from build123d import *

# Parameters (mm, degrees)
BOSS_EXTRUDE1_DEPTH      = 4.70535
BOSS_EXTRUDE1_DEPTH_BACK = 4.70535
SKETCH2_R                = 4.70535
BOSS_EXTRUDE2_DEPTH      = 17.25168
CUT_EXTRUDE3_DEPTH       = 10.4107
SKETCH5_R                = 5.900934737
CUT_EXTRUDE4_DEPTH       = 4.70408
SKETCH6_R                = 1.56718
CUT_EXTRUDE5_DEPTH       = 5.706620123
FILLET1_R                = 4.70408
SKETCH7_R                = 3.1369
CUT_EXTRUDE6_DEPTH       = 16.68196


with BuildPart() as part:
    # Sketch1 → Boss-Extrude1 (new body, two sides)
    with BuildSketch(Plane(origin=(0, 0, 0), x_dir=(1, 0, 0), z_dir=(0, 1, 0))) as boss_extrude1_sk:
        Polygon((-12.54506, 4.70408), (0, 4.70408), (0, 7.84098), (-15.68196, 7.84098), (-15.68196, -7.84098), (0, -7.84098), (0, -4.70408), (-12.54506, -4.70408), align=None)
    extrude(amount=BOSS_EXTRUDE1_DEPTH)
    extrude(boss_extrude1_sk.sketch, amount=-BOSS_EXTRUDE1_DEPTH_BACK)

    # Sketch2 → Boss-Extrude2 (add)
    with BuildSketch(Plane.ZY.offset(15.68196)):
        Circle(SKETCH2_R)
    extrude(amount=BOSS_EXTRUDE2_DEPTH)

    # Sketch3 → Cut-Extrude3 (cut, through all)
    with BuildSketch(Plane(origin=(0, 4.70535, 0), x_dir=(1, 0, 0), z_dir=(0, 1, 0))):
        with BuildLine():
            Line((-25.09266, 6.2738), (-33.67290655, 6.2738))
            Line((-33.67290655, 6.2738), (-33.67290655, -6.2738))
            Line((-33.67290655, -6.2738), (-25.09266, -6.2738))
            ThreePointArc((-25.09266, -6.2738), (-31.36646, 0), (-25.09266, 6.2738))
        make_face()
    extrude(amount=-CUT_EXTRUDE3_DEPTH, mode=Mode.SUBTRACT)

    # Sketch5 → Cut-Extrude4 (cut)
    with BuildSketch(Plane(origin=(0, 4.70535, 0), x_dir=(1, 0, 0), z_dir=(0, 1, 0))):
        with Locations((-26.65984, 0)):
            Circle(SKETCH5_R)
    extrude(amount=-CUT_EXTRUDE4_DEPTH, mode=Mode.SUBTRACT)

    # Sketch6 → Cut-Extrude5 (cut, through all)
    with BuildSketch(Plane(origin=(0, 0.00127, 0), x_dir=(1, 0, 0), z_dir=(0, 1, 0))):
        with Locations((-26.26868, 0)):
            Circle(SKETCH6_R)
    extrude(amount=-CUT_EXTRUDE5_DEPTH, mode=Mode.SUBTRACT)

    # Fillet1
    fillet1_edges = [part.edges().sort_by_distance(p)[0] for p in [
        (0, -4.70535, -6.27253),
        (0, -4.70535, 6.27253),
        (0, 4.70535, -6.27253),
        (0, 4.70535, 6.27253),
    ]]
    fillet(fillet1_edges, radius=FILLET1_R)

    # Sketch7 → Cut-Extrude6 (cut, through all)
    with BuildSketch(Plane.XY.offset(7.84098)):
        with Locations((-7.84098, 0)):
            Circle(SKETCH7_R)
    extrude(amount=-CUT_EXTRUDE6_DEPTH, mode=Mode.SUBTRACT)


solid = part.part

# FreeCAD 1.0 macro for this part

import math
import FreeCAD as App
import Part
import Sketcher

V = App.Vector
Q = App.Units.Quantity


def edges_at(feature, points):
    """Names of the edges that pass closest to the given points."""
    edges = feature.Shape.Edges
    near = lambda p: min(range(len(edges)), key=lambda i: edges[i].distToShape(Part.Vertex(*p))[0])
    return sorted({f"Edge{near(p) + 1}" for p in points})


def add_polygon(sketch, points):
    """Adds a closed chain of lines whose ends are joined by coincident constraints."""
    first, n = sketch.GeometryCount, len(points)
    for a, b in zip(points, points[1:] + points[:1]):
        sketch.addGeometry(Part.LineSegment(App.Vector(*a, 0), App.Vector(*b, 0)), False)
    for i in range(n):
        sketch.addConstraint(Sketcher.Constraint("Coincident", first + i, 2, first + (i + 1) % n, 1))

doc = App.newDocument("Part")
params = doc.addObject("Spreadsheet::Sheet", "Params")
for row, (alias, value) in enumerate([
    ("pad1_length", "4.70535 mm"),
    ("pad1_length2", "4.70535 mm"),
    ("pad2_length", "0.6792 in"),
    ("sketch3_radius", "0.247 in"),
    ("pocket2_length", "0.1852 in"),
    ("fillet_radius", "0.1852 in"),
    ("sketch6_diameter", "0.247 in"),
], start=1):
    params.set(f"A{row}", alias)
    params.set(f"B{row}", "=" + value)
    params.setAlias(f"B{row}", alias)

body = doc.addObject("PartDesign::Body", "Body")

# Sketch on XZ plane
sketch1 = doc.addObject("Sketcher::SketchObject", "Sketch")
body.addObject(sketch1)
sketch1.AttachmentSupport = (doc.XZ_Plane, [""])
sketch1.MapMode = "FlatFace"
add_polygon(sketch1, [(-12.5, -4.7), (0, -4.7), (0, -7.8), (-15.7, -7.8), (-15.7, 7.8), (0, 7.8), (0, 4.7), (-12.5, 4.7)])  # lines 0-7
sketch1.addConstraint([
    Sketcher.Constraint("Horizontal", 0),
    Sketcher.Constraint("Vertical", 1),
    Sketcher.Constraint("Horizontal", 2),
    Sketcher.Constraint("Vertical", 3),
    Sketcher.Constraint("Horizontal", 4),
    Sketcher.Constraint("Vertical", 5),
    Sketcher.Constraint("Horizontal", 6),
    Sketcher.Constraint("Vertical", 7),
    Sketcher.Constraint("Symmetric", 1, 2, 4, 2, -1, 1),
    Sketcher.Constraint("Symmetric", 0, 2, 5, 2, -1),
    Sketcher.Constraint("Equal", 4, 3),
    Sketcher.Constraint("DistanceX", 0, 1, 0, 2, Q("0.4939 in")),
    Sketcher.Constraint("DistanceX", 2, 2, 2, 1, Q("0.6174 in")),
    Sketcher.Constraint("DistanceY", 1, 2, 1, 1, Q("0.1235 in")),
])
pad1 = doc.addObject("PartDesign::Pad", "Pad")
body.addObject(pad1)
pad1.Profile = sketch1
pad1.Type = "TwoLengths"
pad1.setExpression("Length", "Params.pad1_length")
pad1.setExpression("Length2", "Params.pad1_length2")
pad1.Reversed = True

# Sketch on YZ plane
sketch2 = doc.addObject("Sketcher::SketchObject", "Sketch001")
body.addObject(sketch2)
sketch2.AttachmentSupport = (doc.YZ_Plane, [""])
sketch2.MapMode = "FlatFace"
sketch2.AttachmentOffset = App.Placement(V(0, 0, -0.6174 * 25.4), App.Rotation())
sketch2.addGeometry(Part.Circle(V(0, 0, 0), V(0, 0, 1), 4.7), False)
sketch2.addConstraint([
    Sketcher.Constraint("Coincident", 0, 3, -1, 1),
    Sketcher.Constraint("Diameter", 0, Q("0.3705 in")),
])
pad2 = doc.addObject("PartDesign::Pad", "Pad001")
body.addObject(pad2)
pad2.Profile = sketch2
pad2.setExpression("Length", "Params.pad2_length")
pad2.Reversed = True

# Sketch on XZ plane
sketch3 = doc.addObject("Sketcher::SketchObject", "Sketch002")
body.addObject(sketch3)
sketch3.AttachmentSupport = (doc.XZ_Plane, [""])
sketch3.MapMode = "FlatFace"
sketch3.AttachmentOffset = App.Placement(V(0, 0, -4.70535), App.Rotation())
sketch3.addGeometry([
    Part.LineSegment(V(-25, -6, 0), V(-34, -6, 0)),
    Part.LineSegment(V(-34, -6, 0), V(-34, 6, 0)),
    Part.LineSegment(V(-34, 6, 0), V(-25, 6, 0)),
    Part.ArcOfCircle(Part.Circle(V(-25, 0, 0), V(0, 0, 1), 6), math.radians(90), math.radians(270)),
], False)
sketch3.addConstraint([
    Sketcher.Constraint("Coincident", 0, 2, 1, 1),
    Sketcher.Constraint("Coincident", 1, 2, 2, 1),
    Sketcher.Constraint("Tangent", 2, 2, 3, 1),
    Sketcher.Constraint("Tangent", 3, 2, 0, 1),
    Sketcher.Constraint("Horizontal", 0),
    Sketcher.Constraint("Vertical", 1),
    Sketcher.Constraint("Horizontal", 2),
    Sketcher.Constraint("PointOnObject", 3, 3, -1),
    Sketcher.Constraint("Radius", 3, Q("0.247 in")),
    Sketcher.Constraint("DistanceX", 3, 3, -1, 1, Q("0.9879 in")),
    Sketcher.Constraint("DistanceX", 0, 2, 0, 1, 8.580247),
])
sketch3.setExpression("Constraints[8]", "Params.sketch3_radius")
pocket1 = doc.addObject("PartDesign::Pocket", "Pocket")
body.addObject(pocket1)
pocket1.Profile = sketch3
pocket1.Type = "ThroughAll"
pocket1.Reversed = True

# Sketch on XZ plane
sketch4 = doc.addObject("Sketcher::SketchObject", "Sketch003")
body.addObject(sketch4)
sketch4.AttachmentSupport = (doc.XZ_Plane, [""])
sketch4.MapMode = "FlatFace"
sketch4.AttachmentOffset = App.Placement(V(0, 0, -4.70535), App.Rotation())
sketch4.addGeometry(Part.Circle(V(-27, 0, 0), V(0, 0, 1), 6), False)
sketch4.addConstraint([
    Sketcher.Constraint("PointOnObject", 0, 3, -1),
    Sketcher.Constraint("Diameter", 0, 11.801869),
    Sketcher.Constraint("DistanceX", 0, 3, -1, 1, Q("1.0496 in")),
])
pocket2 = doc.addObject("PartDesign::Pocket", "Pocket001")
body.addObject(pocket2)
pocket2.Profile = sketch4
pocket2.setExpression("Length", "Params.pocket2_length")
pocket2.Reversed = True

# Sketch on XZ plane
sketch5 = doc.addObject("Sketcher::SketchObject", "Sketch004")
body.addObject(sketch5)
sketch5.AttachmentSupport = (doc.XZ_Plane, [""])
sketch5.MapMode = "FlatFace"
sketch5.AttachmentOffset = App.Placement(V(0, 0, -0.00127), App.Rotation())
sketch5.addGeometry(Part.Circle(V(-26.3, 0, 0), V(0, 0, 1), 1.6), False)
sketch5.addConstraint([
    Sketcher.Constraint("PointOnObject", 0, 3, -1),
    Sketcher.Constraint("Diameter", 0, Q("0.1234 in")),
    Sketcher.Constraint("DistanceX", 0, 3, -1, 1, Q("1.0342 in")),
])
pocket3 = doc.addObject("PartDesign::Pocket", "Pocket002")
body.addObject(pocket3)
pocket3.Profile = sketch5
pocket3.Type = "ThroughAll"
pocket3.Reversed = True
doc.recompute()

fillet = doc.addObject("PartDesign::Fillet", "Fillet")
body.addObject(fillet)
fillet.Base = (pocket3, edges_at(pocket3, [
    (0, -4.705, -6.273),
    (0, -4.705, 6.273),
    (0, 4.705, -6.273),
    (0, 4.705, 6.273),
]))
fillet.setExpression("Radius", "Params.fillet_radius")

# Sketch on XY plane
sketch6 = doc.addObject("Sketcher::SketchObject", "Sketch005")
body.addObject(sketch6)
sketch6.AttachmentSupport = (doc.XY_Plane, [""])
sketch6.MapMode = "FlatFace"
sketch6.AttachmentOffset = App.Placement(V(0, 0, 0.3087 * 25.4), App.Rotation())
sketch6.addGeometry(Part.Circle(V(-7.8, 0, 0), V(0, 0, 1), 3.1), False)
sketch6.addConstraint([
    Sketcher.Constraint("PointOnObject", 0, 3, -1),
    Sketcher.Constraint("Diameter", 0, Q("0.247 in")),
    Sketcher.Constraint("DistanceX", 0, 3, -1, 1, Q("0.3087 in")),
])
sketch6.setExpression("Constraints[1]", "Params.sketch6_diameter")
pocket4 = doc.addObject("PartDesign::Pocket", "Pocket003")
body.addObject(pocket4)
pocket4.Profile = sketch6
pocket4.Type = "ThroughAll"

doc.recompute()
